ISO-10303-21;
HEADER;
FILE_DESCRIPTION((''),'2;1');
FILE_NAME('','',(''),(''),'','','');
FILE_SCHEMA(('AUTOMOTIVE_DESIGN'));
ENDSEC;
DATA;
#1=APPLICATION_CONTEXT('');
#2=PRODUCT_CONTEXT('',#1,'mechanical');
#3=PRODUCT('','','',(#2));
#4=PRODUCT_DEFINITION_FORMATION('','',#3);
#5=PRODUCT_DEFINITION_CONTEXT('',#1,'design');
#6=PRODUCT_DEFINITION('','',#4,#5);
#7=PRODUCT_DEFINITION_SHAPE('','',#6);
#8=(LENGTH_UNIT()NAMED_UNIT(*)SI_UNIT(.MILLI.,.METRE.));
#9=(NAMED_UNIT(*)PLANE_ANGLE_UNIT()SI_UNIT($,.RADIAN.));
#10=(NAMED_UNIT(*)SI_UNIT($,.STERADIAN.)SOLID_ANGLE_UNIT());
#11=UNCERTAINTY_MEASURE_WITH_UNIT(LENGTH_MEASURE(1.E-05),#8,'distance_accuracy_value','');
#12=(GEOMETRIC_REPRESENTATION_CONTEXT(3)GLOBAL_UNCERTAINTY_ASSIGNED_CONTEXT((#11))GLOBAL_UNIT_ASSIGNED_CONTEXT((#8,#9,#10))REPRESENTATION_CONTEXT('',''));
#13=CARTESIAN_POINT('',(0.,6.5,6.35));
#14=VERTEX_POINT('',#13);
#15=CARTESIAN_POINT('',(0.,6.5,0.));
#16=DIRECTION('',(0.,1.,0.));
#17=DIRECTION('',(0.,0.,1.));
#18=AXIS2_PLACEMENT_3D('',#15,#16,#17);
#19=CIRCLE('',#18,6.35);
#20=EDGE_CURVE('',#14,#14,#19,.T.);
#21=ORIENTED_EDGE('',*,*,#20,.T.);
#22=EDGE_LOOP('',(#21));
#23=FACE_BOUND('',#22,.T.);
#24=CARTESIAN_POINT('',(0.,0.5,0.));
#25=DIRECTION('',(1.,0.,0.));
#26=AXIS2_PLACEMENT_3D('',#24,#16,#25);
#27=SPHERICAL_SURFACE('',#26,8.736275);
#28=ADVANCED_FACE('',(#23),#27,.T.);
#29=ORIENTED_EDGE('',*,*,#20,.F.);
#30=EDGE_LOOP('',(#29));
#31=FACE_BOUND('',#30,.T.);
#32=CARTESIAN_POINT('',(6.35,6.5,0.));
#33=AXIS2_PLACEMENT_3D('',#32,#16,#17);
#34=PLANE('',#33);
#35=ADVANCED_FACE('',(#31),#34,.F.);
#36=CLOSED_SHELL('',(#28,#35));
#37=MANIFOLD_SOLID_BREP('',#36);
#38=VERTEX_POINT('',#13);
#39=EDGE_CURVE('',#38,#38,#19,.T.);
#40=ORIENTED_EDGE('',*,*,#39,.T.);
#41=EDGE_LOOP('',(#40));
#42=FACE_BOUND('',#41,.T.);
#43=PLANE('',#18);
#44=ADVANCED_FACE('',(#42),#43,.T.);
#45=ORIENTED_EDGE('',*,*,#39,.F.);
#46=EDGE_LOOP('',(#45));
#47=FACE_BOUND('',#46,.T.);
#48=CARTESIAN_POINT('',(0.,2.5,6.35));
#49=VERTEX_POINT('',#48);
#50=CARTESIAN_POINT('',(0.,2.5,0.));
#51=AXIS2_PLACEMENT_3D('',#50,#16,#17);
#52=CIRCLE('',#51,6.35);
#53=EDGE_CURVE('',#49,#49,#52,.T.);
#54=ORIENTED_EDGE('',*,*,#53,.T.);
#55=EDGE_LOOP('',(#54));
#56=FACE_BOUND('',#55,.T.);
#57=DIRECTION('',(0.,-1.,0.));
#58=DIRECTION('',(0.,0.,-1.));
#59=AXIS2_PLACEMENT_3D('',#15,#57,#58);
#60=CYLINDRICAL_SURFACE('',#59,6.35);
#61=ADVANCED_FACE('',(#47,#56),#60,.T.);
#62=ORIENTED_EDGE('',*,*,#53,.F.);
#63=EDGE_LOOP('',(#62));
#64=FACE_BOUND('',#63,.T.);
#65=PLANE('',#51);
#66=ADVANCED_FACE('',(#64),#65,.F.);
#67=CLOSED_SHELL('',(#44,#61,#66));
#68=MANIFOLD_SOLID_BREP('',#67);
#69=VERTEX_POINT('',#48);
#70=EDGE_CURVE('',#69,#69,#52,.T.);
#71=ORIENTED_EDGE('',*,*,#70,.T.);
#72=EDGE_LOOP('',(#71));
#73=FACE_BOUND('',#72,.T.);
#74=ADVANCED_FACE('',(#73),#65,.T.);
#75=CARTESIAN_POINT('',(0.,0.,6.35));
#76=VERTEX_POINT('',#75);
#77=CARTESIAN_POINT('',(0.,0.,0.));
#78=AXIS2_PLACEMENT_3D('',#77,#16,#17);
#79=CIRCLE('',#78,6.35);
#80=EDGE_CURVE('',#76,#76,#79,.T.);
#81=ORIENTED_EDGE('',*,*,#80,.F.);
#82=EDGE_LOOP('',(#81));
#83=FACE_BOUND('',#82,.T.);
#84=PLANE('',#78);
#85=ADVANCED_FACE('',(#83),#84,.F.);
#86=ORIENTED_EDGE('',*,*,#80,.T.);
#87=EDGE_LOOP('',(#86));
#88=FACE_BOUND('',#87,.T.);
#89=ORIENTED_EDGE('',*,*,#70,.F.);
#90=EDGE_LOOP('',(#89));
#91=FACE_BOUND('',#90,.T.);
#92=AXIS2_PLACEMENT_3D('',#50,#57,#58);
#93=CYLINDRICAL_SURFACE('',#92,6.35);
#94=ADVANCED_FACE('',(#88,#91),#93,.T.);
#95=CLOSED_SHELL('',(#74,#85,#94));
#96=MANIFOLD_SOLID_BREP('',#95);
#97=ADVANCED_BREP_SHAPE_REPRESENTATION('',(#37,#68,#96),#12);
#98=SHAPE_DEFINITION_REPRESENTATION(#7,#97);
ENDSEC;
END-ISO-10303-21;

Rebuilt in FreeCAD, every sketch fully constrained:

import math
import FreeCAD as App
import Part
import Sketcher
Q = App.Units.Quantity

doc = App.newDocument("Part")
params = doc.addObject("Spreadsheet::Sheet", "Params")
for row, (alias, value) in enumerate([
    ("sketch1_diameter", "12.7 mm"),
    ("pad1_length", "2.5 mm"),
    ("sketch2_diameter", "12.7 mm"),
    ("pad2_length", "4 mm"),
    ("sketch3_width", "6.35 mm"),
    ("revolution_angle", "360 deg"),
], start=1):
    params.set(f"A{row}", alias)
    params.set(f"B{row}", "=" + value)
    params.setAlias(f"B{row}", alias)

body = doc.addObject("PartDesign::Body", "Body")

sketch1 = body.newObject("Sketcher::SketchObject", "Sketch")
sketch1.AttachmentSupport = (doc.getObject("XZ_Plane"), [""])
sketch1.MapMode = "FlatFace"
sketch1.addGeometry(Part.Circle(App.Vector(0, 0, 0), App.Vector(0, 0, 1), 6), False)
sketch1.addConstraint(Sketcher.Constraint("Coincident", 0, 3, -1, 1))
sketch1.addConstraint(Sketcher.Constraint("Diameter", 0, Q("12.7 mm")))
sketch1.setExpression("Constraints[1]", "Params.sketch1_diameter")
pad1 = body.newObject("PartDesign::Pad", "Pad")
pad1.Profile = sketch1
pad1.setExpression("Length", "Params.pad1_length")
pad1.Reversed = True
body2 = doc.addObject("PartDesign::Body", "Body001")

sketch2 = body2.newObject("Sketcher::SketchObject", "Sketch001")
sketch2.AttachmentSupport = (doc.getObject("XZ_Plane001"), [""])
sketch2.MapMode = "FlatFace"
sketch2.AttachmentOffset = App.Placement(App.Vector(0, 0, -2.5), App.Rotation())
sketch2.addGeometry(Part.Circle(App.Vector(0, 0, 0), App.Vector(0, 0, 1), 6), False)
sketch2.addConstraint(Sketcher.Constraint("Coincident", 0, 3, -1, 1))
sketch2.addConstraint(Sketcher.Constraint("Diameter", 0, Q("12.7 mm")))
sketch2.setExpression("Constraints[1]", "Params.sketch2_diameter")
pad2 = body2.newObject("PartDesign::Pad", "Pad001")
pad2.Profile = sketch2
pad2.setExpression("Length", "Params.pad2_length")
pad2.Reversed = True
body3 = doc.addObject("PartDesign::Body", "Body002")

sketch3 = body3.newObject("Sketcher::SketchObject", "Sketch002")
sketch3.AttachmentSupport = (doc.getObject("XY_Plane002"), [""])
sketch3.MapMode = "FlatFace"
sketch3.addGeometry(Part.LineSegment(App.Vector(0, 6.5, 0), App.Vector(6.3, 6.5, 0)), False)
sketch3.addGeometry(Part.ArcOfCircle(Part.Circle(App.Vector(0, 0.5, 0), App.Vector(0, 0, 1), 8.7), math.radians(43), math.radians(90)), False)
sketch3.addGeometry(Part.LineSegment(App.Vector(0, 9.2, 0), App.Vector(0, 6.5, 0)), False)
sketch3.addConstraint(Sketcher.Constraint("Coincident", 0, 2, 1, 1))
sketch3.addConstraint(Sketcher.Constraint("Coincident", 1, 2, 2, 1))
sketch3.addConstraint(Sketcher.Constraint("Coincident", 2, 2, 0, 1))
sketch3.addConstraint(Sketcher.Constraint("Horizontal", 0))
sketch3.addConstraint(Sketcher.Constraint("Vertical", 2))
sketch3.addConstraint(Sketcher.Constraint("PointOnObject", 1, 3, -2))
sketch3.addConstraint(Sketcher.Constraint("PointOnObject", 1, 2, -2))
sketch3.addConstraint(Sketcher.Constraint("DistanceY", 1, 3, 0, 2, Q("6 mm")))
sketch3.addConstraint(Sketcher.Constraint("DistanceX", 0, 1, 0, 2, Q("6.35 mm")))
sketch3.addConstraint(Sketcher.Constraint("DistanceY", -1, 1, 1, 3, Q("0.5 mm")))
sketch3.setExpression("Constraints[8]", "Params.sketch3_width")
revolution = body3.newObject("PartDesign::Revolution", "Revolution")
revolution.Profile = sketch3
revolution.ReferenceAxis = (sketch3, ["V_Axis"])
revolution.setExpression("Angle", "Params.revolution_angle")

doc.recompute()
